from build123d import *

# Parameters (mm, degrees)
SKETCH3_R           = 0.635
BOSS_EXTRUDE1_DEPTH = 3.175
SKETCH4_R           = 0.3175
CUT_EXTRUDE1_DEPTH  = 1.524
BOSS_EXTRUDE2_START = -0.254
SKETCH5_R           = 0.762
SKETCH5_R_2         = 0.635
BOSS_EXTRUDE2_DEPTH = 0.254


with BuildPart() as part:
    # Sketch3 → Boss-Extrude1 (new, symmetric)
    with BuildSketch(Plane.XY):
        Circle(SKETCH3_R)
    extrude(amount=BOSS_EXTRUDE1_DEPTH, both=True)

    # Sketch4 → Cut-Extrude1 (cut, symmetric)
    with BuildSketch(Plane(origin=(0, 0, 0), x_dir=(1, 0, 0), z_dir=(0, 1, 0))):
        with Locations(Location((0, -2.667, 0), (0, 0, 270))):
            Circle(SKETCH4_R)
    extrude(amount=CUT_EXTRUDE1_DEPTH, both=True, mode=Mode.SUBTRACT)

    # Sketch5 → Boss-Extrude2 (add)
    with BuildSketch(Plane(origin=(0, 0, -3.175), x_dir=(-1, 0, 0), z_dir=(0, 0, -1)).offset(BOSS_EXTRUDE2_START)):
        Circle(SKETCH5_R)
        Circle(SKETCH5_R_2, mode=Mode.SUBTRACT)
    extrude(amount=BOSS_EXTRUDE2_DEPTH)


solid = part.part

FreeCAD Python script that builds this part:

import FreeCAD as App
import Part
import Sketcher
from FreeCAD import Vector
Q = App.Units.Quantity

doc = App.newDocument("Part")
body = doc.addObject("PartDesign::Body", "Body")

# Sketch on XY plane
sketch1 = body.newObject("Sketcher::SketchObject", "Sketch")
sketch1.AttachmentSupport = (doc.getObject("XY_Plane"), [""])
sketch1.MapMode = "FlatFace"
sketch1.addGeometry(Part.Circle(Vector(0, 0, 0), Vector(0, 0, 1), 0.635), False)
sketch1.addConstraint(Sketcher.Constraint("Coincident", 0, 3, -1, 1))
sketch1.addConstraint(Sketcher.Constraint("Diameter", 0, Q("0.05 in")))
pad1 = body.newObject("PartDesign::Pad", "Pad")
pad1.Profile = sketch1
pad1.Length = Q("0.25 in")
pad1.Midplane = True

# Sketch on XZ plane
sketch2 = body.newObject("Sketcher::SketchObject", "Sketch001")
sketch2.AttachmentSupport = (doc.getObject("XZ_Plane"), [""])
sketch2.MapMode = "FlatFace"
sketch2.addGeometry(Part.Circle(Vector(0, 2.667, 0), Vector(0, 0, 1), 0.3175), False)
sketch2.addConstraint(Sketcher.Constraint("PointOnObject", 0, 3, -2))
sketch2.addConstraint(Sketcher.Constraint("Diameter", 0, Q("0.025 in")))
sketch2.addConstraint(Sketcher.Constraint("DistanceY", -1, 1, 0, 3, Q("0.105 in")))
pocket1 = body.newObject("PartDesign::Pocket", "Pocket")
pocket1.Profile = sketch2
pocket1.Length = Q("0.12 in")
pocket1.Midplane = True

# Sketch on XY plane
sketch3 = body.newObject("Sketcher::SketchObject", "Sketch002")
sketch3.AttachmentSupport = (doc.getObject("XY_Plane"), [""])
sketch3.MapMode = "FlatFace"
sketch3.AttachmentOffset = App.Placement(Vector(0, 0, -0.115 * 25.4), App.Rotation())
sketch3.addGeometry(Part.Circle(Vector(0, 0, 0), Vector(0, 0, 1), 0.762), False)
sketch3.addGeometry(Part.Circle(Vector(0, 0, 0), Vector(0, 0, 1), 0.635), False)
sketch3.addConstraint(Sketcher.Constraint("Coincident", 0, 3, -1, 1))
sketch3.addConstraint(Sketcher.Constraint("Coincident", 1, 3, -1, 1))
sketch3.addConstraint(Sketcher.Constraint("Diameter", 0, Q("0.06 in")))
sketch3.addConstraint(Sketcher.Constraint("Diameter", 1, Q("0.05 in")))
pad2 = body.newObject("PartDesign::Pad", "Pad001")
pad2.Profile = sketch3
pad2.Length = Q("0.01 in")
pad2.Reversed = True

doc.recompute()
